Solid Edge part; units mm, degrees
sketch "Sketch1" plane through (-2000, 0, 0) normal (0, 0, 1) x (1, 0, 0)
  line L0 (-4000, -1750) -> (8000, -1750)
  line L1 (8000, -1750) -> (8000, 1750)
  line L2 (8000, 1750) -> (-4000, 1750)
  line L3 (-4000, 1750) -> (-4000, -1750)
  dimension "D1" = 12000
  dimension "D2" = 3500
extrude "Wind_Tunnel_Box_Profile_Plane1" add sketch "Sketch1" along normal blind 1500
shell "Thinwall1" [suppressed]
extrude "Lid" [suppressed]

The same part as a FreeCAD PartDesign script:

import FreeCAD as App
import Part
import Sketcher


def add_polygon(sketch, points):
    """Adds a closed chain of lines whose ends are joined by coincident constraints."""
    first, n = sketch.GeometryCount, len(points)
    for a, b in zip(points, points[1:] + points[:1]):
        sketch.addGeometry(Part.LineSegment(App.Vector(*a, 0), App.Vector(*b, 0)), False)
    for i in range(n):
        sketch.addConstraint(Sketcher.Constraint("Coincident", first + i, 2, first + (i + 1) % n, 1))

doc = App.newDocument("Part")
body = doc.addObject("PartDesign::Body", "Body")

# Sketch on XY plane
sketch1 = doc.addObject("Sketcher::SketchObject", "Sketch")
body.addObject(sketch1)
sketch1.AttachmentSupport = (doc.XY_Plane, [""])
sketch1.MapMode = "FlatFace"
add_polygon(sketch1, [(-6000, 1750), (-6000, -1750), (6000, -1750), (6000, 1750)])  # lines 0-3
sketch1.addConstraint(Sketcher.Constraint("Vertical", 0))
sketch1.addConstraint(Sketcher.Constraint("Horizontal", 1))
sketch1.addConstraint(Sketcher.Constraint("Vertical", 2))
sketch1.addConstraint(Sketcher.Constraint("Horizontal", 3))
sketch1.addConstraint(Sketcher.Constraint("Symmetric", 0, 2, 2, 2, -1, 1))
sketch1.addConstraint(Sketcher.Constraint("DistanceX", 1, 1, 1, 2, 12000.0))
sketch1.addConstraint(Sketcher.Constraint("DistanceY", 0, 2, 0, 1, 3500.0))
pad1 = doc.addObject("PartDesign::Pad", "Pad")
body.addObject(pad1)
pad1.Profile = sketch1
pad1.Length = 1500

doc.recompute()
